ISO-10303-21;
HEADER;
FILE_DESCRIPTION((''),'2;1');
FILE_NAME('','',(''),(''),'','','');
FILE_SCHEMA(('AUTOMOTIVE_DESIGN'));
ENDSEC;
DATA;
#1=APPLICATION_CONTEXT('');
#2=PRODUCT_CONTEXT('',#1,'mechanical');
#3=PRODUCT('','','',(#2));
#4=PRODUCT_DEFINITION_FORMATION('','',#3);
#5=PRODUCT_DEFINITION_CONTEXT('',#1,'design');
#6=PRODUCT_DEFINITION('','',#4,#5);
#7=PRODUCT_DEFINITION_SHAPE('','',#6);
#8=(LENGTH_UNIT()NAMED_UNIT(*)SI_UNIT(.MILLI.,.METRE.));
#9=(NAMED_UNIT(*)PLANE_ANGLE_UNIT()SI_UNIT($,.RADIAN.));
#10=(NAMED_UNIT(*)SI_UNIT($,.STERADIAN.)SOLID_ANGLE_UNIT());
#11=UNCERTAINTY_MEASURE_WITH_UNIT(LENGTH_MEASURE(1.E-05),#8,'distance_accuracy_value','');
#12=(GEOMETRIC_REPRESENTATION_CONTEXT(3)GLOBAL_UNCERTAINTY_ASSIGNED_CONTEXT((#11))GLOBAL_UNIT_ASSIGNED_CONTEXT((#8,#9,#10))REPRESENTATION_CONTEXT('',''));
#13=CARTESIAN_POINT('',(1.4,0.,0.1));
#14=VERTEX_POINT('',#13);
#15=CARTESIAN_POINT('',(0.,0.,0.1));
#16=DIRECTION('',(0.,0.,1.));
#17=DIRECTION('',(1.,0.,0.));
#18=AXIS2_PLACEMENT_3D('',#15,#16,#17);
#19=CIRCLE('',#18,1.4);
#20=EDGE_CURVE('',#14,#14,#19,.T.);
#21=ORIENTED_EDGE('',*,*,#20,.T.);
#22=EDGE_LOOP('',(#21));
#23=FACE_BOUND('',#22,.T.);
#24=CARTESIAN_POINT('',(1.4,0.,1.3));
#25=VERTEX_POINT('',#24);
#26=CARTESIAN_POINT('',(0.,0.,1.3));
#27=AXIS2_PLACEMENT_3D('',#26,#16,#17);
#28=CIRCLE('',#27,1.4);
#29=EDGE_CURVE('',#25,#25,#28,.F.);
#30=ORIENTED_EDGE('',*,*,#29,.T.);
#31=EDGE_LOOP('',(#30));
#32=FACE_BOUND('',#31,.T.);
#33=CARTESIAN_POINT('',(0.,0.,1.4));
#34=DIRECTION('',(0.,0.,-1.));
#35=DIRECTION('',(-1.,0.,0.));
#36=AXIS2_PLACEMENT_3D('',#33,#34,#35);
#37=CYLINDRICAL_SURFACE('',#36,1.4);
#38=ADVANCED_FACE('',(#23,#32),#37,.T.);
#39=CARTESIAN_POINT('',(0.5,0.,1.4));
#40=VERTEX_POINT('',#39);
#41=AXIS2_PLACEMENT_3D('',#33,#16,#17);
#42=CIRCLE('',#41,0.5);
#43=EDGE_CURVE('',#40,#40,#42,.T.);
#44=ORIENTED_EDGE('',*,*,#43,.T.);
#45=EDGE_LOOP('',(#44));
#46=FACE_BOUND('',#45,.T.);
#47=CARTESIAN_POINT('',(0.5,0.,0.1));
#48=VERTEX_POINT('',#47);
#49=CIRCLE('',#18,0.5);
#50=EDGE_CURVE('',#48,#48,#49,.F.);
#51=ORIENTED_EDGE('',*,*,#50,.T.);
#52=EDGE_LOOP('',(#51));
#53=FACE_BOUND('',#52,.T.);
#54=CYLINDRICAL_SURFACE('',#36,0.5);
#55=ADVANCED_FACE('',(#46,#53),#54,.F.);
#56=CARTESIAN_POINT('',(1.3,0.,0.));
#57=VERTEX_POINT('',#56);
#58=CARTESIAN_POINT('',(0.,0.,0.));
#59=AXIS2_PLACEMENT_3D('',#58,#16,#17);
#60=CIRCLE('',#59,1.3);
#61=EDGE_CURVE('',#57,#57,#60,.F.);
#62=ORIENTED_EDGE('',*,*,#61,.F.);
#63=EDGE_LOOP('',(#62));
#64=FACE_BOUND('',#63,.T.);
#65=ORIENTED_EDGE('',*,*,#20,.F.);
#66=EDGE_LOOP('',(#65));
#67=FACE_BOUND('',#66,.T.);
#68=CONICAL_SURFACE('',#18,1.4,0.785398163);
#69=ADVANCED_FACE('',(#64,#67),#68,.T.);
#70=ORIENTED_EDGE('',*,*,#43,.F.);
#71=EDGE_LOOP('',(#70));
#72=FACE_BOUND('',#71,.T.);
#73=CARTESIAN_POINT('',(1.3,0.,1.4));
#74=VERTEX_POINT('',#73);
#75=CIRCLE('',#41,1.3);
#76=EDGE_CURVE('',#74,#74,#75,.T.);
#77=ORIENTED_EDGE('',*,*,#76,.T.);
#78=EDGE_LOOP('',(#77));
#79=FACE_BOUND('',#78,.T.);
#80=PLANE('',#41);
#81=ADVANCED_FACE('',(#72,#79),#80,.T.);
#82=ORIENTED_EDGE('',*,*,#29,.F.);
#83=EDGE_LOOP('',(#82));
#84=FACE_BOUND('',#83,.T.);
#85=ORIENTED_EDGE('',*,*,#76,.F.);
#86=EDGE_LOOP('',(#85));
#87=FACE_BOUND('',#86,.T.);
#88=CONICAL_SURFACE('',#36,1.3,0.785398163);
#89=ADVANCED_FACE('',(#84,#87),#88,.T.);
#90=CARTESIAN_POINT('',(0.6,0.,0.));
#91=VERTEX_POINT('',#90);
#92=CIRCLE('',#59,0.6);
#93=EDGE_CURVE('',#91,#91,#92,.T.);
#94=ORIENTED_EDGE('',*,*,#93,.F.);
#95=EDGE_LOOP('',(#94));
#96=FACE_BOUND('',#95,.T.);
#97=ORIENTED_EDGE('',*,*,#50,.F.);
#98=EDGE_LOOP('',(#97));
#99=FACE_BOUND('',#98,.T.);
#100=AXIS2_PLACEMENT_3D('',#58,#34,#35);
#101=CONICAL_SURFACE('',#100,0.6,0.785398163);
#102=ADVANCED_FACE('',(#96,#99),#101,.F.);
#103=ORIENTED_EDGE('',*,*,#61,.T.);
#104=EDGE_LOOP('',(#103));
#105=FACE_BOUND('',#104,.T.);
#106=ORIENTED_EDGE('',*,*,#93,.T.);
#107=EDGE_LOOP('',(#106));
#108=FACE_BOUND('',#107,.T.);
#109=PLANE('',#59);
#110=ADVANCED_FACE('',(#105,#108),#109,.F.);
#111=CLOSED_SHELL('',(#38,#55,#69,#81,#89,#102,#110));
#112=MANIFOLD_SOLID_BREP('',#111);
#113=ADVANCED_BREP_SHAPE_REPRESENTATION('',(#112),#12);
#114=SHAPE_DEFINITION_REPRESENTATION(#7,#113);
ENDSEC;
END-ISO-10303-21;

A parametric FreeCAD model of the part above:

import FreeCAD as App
import Part
import Sketcher

V = App.Vector
Q = App.Units.Quantity


def edges_at(feature, points):
    """Names of the edges that pass closest to the given points."""
    edges = feature.Shape.Edges
    near = lambda p: min(range(len(edges)), key=lambda i: edges[i].distToShape(Part.Vertex(*p))[0])
    return sorted({f"Edge{near(p) + 1}" for p in points})

doc = App.newDocument("Part")
body = doc.addObject("PartDesign::Body", "Body")

sketch1 = body.newObject("Sketcher::SketchObject", "Sketch")
sketch1.AttachmentSupport = (doc.getObject("XY_Plane"), [""])
sketch1.MapMode = "FlatFace"
sketch1.addGeometry(Part.Circle(V(0, 0, 0), V(0, 0, 1), 1.4), False)
sketch1.addGeometry(Part.Circle(V(0, 0, 0), V(0, 0, 1), 0.5), False)
sketch1.addConstraint(Sketcher.Constraint("Coincident", 0, 3, -1, 1))
sketch1.addConstraint(Sketcher.Constraint("Coincident", 1, 3, -1, 1))
sketch1.addConstraint(Sketcher.Constraint("Diameter", 1, Q("1 mm")))
sketch1.addConstraint(Sketcher.Constraint("Diameter", 0, Q("2.8 mm")))
pad1 = body.newObject("PartDesign::Pad", "Pad")
pad1.Profile = sketch1
pad1.Length = 1.4
doc.recompute()

chamfer = body.newObject("PartDesign::Chamfer", "Chamfer")
chamfer.Base = (pad1, edges_at(pad1, [(-1.4, 0, 0), (-1.4, 0, 1.4), (-0.5, 0, 0)]))
chamfer.Size = 0.1

doc.recompute()
